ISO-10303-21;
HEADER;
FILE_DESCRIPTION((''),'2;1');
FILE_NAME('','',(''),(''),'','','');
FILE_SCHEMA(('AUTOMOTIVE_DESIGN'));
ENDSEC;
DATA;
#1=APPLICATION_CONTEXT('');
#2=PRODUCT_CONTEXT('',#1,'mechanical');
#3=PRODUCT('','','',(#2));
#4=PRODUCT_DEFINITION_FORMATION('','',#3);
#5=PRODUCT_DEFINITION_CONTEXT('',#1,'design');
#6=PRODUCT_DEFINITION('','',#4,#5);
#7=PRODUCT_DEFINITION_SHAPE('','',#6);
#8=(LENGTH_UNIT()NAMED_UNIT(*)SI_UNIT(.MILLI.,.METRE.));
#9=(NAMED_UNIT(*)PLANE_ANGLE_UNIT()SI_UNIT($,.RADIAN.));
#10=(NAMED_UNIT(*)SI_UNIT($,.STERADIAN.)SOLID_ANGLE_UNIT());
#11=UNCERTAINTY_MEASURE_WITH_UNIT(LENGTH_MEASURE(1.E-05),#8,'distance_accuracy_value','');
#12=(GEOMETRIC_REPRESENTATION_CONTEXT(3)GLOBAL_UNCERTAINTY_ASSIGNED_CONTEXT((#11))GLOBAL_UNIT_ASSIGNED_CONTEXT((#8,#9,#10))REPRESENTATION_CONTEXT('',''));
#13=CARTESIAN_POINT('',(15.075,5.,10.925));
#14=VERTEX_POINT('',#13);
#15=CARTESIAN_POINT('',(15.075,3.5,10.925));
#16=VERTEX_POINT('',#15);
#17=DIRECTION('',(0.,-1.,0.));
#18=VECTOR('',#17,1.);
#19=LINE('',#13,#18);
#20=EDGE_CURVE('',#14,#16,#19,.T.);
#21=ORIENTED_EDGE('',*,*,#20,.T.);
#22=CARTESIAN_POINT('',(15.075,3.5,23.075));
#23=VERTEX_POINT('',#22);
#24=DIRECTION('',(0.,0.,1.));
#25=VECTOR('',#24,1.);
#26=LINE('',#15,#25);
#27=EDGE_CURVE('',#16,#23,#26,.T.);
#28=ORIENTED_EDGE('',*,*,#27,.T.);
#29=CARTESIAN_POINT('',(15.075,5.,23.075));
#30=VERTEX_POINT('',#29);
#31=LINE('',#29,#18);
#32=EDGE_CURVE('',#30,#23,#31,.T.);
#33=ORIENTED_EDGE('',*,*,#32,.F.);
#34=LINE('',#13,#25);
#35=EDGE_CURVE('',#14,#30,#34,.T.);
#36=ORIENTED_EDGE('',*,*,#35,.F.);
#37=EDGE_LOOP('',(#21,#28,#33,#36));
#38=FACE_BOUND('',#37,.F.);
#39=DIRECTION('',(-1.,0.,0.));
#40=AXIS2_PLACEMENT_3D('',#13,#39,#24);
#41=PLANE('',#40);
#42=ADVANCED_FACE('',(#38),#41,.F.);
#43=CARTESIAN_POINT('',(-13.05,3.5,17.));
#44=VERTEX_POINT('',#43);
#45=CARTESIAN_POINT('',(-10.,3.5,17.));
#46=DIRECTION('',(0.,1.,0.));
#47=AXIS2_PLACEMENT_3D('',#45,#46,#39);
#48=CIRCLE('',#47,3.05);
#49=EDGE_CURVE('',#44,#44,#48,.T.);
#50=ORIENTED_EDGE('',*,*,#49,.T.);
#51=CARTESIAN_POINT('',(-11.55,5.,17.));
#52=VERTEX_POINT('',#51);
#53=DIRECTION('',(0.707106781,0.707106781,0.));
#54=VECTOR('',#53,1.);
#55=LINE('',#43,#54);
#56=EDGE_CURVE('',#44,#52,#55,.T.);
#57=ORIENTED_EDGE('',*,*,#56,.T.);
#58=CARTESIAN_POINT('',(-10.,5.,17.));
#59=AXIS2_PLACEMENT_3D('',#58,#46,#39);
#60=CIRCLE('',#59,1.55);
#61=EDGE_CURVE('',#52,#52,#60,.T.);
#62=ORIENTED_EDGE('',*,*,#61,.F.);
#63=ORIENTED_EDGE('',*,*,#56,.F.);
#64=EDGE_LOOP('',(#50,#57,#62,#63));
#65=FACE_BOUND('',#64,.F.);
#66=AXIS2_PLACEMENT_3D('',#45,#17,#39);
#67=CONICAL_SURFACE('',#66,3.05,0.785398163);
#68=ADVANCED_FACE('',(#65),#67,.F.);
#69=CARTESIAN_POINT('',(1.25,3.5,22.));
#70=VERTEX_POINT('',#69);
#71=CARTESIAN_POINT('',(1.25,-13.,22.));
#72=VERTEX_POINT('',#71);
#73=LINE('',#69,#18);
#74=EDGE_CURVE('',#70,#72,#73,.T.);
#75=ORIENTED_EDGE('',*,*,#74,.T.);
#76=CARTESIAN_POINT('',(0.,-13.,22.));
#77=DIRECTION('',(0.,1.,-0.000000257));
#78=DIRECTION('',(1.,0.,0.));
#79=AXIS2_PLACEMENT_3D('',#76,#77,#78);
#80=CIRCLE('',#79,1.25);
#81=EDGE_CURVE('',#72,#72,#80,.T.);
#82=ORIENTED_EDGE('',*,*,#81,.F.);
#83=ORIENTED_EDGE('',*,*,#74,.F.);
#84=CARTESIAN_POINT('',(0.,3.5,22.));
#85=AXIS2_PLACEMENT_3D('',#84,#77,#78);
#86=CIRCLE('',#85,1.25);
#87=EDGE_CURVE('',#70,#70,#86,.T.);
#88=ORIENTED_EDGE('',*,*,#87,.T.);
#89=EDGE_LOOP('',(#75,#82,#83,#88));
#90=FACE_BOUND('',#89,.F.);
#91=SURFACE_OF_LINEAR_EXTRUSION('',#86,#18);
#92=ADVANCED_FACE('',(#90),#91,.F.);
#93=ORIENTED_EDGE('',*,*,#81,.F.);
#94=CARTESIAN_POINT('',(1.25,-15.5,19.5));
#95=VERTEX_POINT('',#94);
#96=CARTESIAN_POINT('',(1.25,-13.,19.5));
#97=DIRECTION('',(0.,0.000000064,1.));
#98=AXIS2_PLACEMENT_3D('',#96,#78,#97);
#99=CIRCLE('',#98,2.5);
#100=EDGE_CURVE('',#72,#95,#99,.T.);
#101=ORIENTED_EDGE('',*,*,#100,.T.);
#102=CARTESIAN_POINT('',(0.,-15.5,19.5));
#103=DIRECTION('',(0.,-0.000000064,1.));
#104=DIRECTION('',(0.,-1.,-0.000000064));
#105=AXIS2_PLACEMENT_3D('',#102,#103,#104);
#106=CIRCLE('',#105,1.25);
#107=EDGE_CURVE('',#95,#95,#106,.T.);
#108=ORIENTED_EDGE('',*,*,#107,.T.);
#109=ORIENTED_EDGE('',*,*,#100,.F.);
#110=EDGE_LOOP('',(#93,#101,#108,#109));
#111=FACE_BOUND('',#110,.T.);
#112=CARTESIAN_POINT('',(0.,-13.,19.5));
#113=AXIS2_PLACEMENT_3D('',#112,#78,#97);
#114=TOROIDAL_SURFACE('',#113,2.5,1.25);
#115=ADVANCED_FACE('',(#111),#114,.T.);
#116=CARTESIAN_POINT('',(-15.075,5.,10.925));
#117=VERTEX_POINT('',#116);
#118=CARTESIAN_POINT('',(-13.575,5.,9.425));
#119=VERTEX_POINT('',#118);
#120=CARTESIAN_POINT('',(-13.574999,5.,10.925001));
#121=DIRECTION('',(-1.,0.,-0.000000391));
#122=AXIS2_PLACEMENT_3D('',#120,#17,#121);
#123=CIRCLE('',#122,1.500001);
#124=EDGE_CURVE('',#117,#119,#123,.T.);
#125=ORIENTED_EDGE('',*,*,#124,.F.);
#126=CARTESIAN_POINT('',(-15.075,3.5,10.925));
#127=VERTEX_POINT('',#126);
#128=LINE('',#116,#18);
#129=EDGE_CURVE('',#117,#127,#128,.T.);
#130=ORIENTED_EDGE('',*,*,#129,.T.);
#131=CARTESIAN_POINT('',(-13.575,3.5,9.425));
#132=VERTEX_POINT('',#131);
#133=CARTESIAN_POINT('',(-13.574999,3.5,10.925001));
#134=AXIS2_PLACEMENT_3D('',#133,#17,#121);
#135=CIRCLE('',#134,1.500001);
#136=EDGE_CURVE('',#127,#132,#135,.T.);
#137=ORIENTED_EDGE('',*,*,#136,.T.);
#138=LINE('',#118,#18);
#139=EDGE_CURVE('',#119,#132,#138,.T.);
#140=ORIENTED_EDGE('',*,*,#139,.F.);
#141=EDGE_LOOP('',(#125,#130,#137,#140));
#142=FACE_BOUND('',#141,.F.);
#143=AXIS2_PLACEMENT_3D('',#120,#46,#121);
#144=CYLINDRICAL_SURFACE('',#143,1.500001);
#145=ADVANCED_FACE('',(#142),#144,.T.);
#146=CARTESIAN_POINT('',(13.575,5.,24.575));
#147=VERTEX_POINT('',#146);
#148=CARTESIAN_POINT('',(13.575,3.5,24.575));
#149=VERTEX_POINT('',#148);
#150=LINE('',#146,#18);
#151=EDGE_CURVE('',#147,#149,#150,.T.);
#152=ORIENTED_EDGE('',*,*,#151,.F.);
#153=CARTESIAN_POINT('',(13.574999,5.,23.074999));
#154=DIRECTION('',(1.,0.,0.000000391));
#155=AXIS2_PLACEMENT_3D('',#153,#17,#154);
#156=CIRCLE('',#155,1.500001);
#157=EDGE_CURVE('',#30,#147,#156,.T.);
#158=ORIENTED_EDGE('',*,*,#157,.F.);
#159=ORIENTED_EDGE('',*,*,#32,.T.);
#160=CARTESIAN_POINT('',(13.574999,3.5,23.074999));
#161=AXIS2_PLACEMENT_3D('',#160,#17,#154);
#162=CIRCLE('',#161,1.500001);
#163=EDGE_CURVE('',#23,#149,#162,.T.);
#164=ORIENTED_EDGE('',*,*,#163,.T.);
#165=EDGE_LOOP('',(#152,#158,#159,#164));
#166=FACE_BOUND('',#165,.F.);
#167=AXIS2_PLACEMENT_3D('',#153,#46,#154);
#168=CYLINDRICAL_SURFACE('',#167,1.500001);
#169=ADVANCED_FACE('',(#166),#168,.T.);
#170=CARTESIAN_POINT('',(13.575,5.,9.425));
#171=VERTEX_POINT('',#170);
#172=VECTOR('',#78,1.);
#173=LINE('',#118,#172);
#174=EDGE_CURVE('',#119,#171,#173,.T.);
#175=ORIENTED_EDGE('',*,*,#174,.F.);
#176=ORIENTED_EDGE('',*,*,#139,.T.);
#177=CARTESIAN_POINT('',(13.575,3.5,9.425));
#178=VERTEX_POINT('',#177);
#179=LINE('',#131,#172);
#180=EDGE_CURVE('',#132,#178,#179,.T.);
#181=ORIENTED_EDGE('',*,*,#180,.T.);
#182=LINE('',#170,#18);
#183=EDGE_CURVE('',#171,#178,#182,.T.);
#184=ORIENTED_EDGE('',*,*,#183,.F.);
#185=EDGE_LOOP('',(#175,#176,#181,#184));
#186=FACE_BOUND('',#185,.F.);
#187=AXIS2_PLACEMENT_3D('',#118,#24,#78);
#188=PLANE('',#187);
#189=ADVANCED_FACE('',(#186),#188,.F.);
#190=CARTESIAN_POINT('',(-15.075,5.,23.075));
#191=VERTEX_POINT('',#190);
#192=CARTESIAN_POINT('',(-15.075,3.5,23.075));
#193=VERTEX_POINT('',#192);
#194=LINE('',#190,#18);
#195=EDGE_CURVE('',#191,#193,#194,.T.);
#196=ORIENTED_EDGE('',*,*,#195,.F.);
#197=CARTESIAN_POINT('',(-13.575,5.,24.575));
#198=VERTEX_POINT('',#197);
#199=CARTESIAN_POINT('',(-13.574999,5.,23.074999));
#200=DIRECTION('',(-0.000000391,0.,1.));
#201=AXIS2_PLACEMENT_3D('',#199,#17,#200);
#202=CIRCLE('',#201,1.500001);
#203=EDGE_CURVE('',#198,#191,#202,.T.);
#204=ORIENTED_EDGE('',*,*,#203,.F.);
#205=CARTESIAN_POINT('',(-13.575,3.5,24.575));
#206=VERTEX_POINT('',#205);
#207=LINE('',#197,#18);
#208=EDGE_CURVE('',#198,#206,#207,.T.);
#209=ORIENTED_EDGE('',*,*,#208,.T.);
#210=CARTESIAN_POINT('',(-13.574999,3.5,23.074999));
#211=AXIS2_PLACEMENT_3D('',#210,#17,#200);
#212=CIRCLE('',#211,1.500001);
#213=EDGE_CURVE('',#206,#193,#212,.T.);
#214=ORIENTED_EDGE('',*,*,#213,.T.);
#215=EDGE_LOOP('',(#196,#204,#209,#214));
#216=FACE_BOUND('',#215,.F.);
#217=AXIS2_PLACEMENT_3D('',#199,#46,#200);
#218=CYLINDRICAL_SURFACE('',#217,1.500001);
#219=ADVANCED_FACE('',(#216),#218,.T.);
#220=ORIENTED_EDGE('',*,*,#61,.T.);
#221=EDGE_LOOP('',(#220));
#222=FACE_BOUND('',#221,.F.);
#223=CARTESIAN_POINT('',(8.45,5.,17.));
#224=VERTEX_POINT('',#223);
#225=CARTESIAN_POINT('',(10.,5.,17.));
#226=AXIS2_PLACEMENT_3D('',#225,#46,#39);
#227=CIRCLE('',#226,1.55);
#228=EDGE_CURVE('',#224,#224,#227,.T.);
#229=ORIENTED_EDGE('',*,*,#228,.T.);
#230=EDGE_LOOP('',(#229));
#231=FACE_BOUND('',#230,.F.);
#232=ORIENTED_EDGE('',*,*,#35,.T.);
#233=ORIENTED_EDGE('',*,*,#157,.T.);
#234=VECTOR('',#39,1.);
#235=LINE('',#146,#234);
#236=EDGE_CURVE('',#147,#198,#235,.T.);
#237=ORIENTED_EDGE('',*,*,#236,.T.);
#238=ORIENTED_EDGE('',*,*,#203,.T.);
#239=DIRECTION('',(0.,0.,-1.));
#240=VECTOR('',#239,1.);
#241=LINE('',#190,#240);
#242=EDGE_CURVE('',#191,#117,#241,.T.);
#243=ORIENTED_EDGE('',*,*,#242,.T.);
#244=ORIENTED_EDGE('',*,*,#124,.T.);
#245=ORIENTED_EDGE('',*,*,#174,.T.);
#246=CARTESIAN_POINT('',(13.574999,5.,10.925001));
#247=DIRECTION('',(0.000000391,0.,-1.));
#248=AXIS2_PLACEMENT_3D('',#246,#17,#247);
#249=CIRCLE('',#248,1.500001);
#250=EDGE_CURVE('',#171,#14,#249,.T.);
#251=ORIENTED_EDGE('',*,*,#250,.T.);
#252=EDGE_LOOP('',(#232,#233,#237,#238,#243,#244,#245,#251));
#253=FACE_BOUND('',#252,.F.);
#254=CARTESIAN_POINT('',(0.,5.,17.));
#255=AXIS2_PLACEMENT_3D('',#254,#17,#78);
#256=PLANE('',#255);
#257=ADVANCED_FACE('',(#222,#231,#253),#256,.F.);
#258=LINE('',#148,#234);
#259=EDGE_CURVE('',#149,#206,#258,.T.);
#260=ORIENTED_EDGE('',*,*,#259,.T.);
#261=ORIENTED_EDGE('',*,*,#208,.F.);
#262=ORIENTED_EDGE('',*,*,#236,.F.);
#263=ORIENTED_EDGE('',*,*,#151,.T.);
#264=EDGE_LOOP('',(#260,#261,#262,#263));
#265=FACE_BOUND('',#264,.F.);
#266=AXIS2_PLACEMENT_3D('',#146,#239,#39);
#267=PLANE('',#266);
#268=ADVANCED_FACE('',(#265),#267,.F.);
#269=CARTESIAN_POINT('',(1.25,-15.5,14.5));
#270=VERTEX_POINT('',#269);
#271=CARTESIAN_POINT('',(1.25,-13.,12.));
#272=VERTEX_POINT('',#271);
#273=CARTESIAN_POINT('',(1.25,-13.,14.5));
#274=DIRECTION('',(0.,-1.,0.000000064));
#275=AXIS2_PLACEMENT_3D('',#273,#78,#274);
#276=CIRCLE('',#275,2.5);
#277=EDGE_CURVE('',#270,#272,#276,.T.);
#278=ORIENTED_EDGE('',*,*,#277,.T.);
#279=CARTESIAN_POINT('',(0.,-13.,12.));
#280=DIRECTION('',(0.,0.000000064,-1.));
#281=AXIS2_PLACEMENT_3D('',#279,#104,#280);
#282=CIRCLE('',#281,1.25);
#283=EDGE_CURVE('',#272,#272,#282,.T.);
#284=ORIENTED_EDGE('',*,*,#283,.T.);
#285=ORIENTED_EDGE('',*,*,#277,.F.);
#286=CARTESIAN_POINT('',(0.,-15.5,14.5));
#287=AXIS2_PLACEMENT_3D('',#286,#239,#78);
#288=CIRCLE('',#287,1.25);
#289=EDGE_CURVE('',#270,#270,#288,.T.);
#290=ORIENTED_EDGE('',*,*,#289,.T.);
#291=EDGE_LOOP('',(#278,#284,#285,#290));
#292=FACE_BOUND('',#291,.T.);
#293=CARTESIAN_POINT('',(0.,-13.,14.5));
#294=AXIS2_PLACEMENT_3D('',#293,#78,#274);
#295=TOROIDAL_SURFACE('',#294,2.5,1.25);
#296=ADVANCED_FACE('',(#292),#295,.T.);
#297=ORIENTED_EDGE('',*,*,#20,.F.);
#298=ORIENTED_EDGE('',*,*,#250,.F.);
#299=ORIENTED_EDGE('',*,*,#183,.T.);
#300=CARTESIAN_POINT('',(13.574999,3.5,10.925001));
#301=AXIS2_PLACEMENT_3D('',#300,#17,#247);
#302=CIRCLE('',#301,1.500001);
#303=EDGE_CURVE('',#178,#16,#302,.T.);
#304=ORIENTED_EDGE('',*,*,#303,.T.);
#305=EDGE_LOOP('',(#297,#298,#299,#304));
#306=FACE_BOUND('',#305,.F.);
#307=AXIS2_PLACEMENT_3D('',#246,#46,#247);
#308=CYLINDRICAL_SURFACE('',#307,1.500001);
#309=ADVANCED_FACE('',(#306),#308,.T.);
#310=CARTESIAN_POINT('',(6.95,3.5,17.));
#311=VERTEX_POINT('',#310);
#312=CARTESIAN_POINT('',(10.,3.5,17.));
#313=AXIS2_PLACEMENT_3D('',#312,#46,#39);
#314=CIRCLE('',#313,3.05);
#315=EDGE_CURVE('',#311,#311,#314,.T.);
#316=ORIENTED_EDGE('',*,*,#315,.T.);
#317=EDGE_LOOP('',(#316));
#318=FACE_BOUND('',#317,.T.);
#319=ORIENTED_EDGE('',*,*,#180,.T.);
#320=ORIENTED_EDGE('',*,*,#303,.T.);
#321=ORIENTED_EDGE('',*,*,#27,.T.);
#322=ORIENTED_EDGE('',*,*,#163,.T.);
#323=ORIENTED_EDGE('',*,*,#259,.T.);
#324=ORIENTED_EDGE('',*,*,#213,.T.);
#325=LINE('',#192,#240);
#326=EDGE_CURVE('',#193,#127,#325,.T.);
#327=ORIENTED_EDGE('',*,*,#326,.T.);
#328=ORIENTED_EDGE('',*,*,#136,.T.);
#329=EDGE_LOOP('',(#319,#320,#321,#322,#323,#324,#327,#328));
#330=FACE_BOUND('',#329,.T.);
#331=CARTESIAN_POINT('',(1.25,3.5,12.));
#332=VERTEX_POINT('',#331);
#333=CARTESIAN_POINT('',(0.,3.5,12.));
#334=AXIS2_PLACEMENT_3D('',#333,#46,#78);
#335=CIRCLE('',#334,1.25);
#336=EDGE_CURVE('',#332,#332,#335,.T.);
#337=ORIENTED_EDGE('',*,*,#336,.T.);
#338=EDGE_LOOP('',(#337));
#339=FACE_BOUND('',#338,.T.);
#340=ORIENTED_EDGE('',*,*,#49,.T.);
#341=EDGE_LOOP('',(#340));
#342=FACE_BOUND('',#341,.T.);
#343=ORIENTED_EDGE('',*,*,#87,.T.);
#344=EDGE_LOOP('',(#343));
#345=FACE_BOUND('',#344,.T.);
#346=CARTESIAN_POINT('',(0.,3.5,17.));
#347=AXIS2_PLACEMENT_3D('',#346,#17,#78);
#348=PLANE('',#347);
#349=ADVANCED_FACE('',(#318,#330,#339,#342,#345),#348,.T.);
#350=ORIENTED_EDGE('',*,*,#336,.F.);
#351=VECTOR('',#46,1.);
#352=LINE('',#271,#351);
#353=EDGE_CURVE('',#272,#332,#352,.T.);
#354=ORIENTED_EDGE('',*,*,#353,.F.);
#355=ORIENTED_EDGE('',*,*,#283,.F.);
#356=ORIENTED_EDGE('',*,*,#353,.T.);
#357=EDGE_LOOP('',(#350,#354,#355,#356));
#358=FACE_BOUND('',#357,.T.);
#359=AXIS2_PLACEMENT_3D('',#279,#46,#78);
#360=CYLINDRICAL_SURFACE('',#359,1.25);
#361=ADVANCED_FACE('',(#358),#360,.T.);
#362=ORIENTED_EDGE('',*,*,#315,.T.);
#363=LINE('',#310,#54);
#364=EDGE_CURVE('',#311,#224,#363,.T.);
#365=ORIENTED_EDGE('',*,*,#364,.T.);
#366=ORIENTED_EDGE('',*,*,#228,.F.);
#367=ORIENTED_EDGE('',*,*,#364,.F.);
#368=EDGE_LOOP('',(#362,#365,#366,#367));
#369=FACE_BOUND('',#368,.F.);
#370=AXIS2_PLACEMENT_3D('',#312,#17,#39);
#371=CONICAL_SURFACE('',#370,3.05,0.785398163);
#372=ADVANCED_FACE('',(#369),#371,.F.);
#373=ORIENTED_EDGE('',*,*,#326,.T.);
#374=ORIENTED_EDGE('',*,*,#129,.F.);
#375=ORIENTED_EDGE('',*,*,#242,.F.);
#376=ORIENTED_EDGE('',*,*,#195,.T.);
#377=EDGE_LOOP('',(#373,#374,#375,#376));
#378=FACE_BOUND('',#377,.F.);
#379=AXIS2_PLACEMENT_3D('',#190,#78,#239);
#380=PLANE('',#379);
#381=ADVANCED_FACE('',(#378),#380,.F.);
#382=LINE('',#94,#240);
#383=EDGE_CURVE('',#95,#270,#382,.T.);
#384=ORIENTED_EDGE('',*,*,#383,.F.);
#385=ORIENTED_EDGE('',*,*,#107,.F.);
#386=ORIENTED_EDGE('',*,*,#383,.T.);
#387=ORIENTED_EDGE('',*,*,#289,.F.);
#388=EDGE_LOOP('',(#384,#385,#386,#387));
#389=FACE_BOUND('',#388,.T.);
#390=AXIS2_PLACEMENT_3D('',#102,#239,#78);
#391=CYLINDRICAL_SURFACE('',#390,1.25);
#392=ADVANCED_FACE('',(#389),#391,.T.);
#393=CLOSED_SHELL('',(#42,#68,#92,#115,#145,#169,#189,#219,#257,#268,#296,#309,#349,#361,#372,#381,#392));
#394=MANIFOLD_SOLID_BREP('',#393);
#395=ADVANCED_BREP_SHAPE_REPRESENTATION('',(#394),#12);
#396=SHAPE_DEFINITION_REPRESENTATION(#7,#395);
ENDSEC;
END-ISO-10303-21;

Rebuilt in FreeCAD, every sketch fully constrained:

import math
import FreeCAD as App
import Part
import Sketcher

V = App.Vector
Q = App.Units.Quantity

doc = App.newDocument("Part")
params = doc.addObject("Spreadsheet::Sheet", "Params")
for row, (alias, value) in enumerate([
    ("sketch1_radius", "1.500001 mm"),
    ("sketch1_width", "27.15 mm"),
    ("sketch1_height", "12.15 mm"),
    ("pad1_length", "1.5 mm"),
    ("sketch2_diameter", "3 mm"),
    ("hole_diameter", "3 mm"),
    ("hole_depth", "25 mm"),
    ("hole_csink_diameter", "6.1 mm"),
    ("sketch3_diameter", "2.5 mm"),
    ("sketch4_radius", "2.5 mm"),
    ("sketch4_height", "5 mm"),
    ("sketch4_width", "16.5 mm"),
], start=1):
    params.set(f"A{row}", alias)
    params.set(f"B{row}", "=" + value)
    params.setAlias(f"B{row}", alias)

body = doc.addObject("PartDesign::Body", "Body")

# Sketch on XZ plane
sketch1 = doc.addObject("Sketcher::SketchObject", "Sketch")
body.addObject(sketch1)
sketch1.AttachmentSupport = (doc.XZ_Plane, [""])
sketch1.MapMode = "FlatFace"
sketch1.addGeometry([
    Part.LineSegment(V(-15.1, 6.1, 0), V(-15.1, -6.1, 0)),  # 0
    Part.ArcOfCircle(Part.Circle(V(-13.6, -6.1, 0), V(0, 0, 1), 1.5), math.radians(-180), math.radians(-90)),  # 1
    Part.LineSegment(V(-13.6, -7.6, 0), V(13.6, -7.6, 0)),  # 2
    Part.ArcOfCircle(Part.Circle(V(13.6, -6.1, 0), V(0, 0, 1), 1.5), math.radians(-90), math.radians(0)),  # 3
    Part.LineSegment(V(15.1, -6.1, 0), V(15.1, 6.1, 0)),  # 4
    Part.ArcOfCircle(Part.Circle(V(13.6, 6.1, 0), V(0, 0, 1), 1.5), math.radians(0), math.radians(90)),  # 5
    Part.LineSegment(V(13.6, 7.6, 0), V(-13.6, 7.6, 0)),  # 6
    Part.ArcOfCircle(Part.Circle(V(-13.6, 6.1, 0), V(0, 0, 1), 1.5), math.radians(90), math.radians(180)),  # 7
], False)
sketch1.addConstraint([
    Sketcher.Constraint("Tangent", 0, 2, 1, 1),
    Sketcher.Constraint("Tangent", 1, 2, 2, 1),
    Sketcher.Constraint("Tangent", 2, 2, 3, 1),
    Sketcher.Constraint("Tangent", 3, 2, 4, 1),
    Sketcher.Constraint("Tangent", 4, 2, 5, 1),
    Sketcher.Constraint("Tangent", 5, 2, 6, 1),
    Sketcher.Constraint("Tangent", 6, 2, 7, 1),
    Sketcher.Constraint("Tangent", 7, 2, 0, 1),
    Sketcher.Constraint("Vertical", 0),
    Sketcher.Constraint("Horizontal", 2),
    Sketcher.Constraint("Vertical", 4),
    Sketcher.Constraint("Horizontal", 6),
    Sketcher.Constraint("Equal", 1, 3),
    Sketcher.Constraint("Equal", 3, 5),
    Sketcher.Constraint("Equal", 5, 7),
    Sketcher.Constraint("Symmetric", 1, 3, 5, 3, -1, 1),
    Sketcher.Constraint("Radius", 1, Q("1.500001 mm")),
    Sketcher.Constraint("DistanceX", 2, 1, 2, 2, Q("27.15 mm")),
    Sketcher.Constraint("DistanceY", 0, 2, 0, 1, Q("12.15 mm")),
])
sketch1.setExpression("Constraints[16]", "Params.sketch1_radius")
sketch1.setExpression("Constraints[17]", "Params.sketch1_width")
sketch1.setExpression("Constraints[18]", "Params.sketch1_height")
pad1 = doc.addObject("PartDesign::Pad", "Pad")
body.addObject(pad1)
pad1.Profile = sketch1
pad1.setExpression("Length", "Params.pad1_length")

# Sketch on XZ plane
sketch2 = doc.addObject("Sketcher::SketchObject", "Sketch001")
body.addObject(sketch2)
sketch2.AttachmentSupport = (doc.XZ_Plane, [""])
sketch2.MapMode = "FlatFace"
sketch2.AttachmentOffset = App.Placement(V(0, 0, 1.5), App.Rotation())
sketch2.addGeometry([
    Part.Circle(V(-10, 0, 0), V(0, 0, 1), 1.5),
    Part.Circle(V(10, 0, 0), V(0, 0, 1), 1.5),
], False)
sketch2.addConstraint([
    Sketcher.Constraint("Equal", 0, 1),
    Sketcher.Constraint("Symmetric", 0, 3, 1, 3, -1, 1),
    Sketcher.Constraint("PointOnObject", 0, 3, -1),
    Sketcher.Constraint("Diameter", 0, Q("3 mm")),
    Sketcher.Constraint("DistanceX", 0, 3, -1, 1, Q("10 mm")),
])
sketch2.setExpression("Constraints[3]", "Params.sketch2_diameter")
doc.recompute()
hole = doc.addObject("PartDesign::Hole", "Hole")
body.addObject(hole)
hole.Profile = sketch2
hole.ThreadType = "None"
hole.setExpression("Diameter", "Params.hole_diameter")
hole.DepthType = "Dimension"
hole.setExpression("Depth", "Params.hole_depth")
hole.DrillPoint = "Flat"
hole.HoleCutType = "Countersink"
hole.setExpression("HoleCutDiameter", "Params.hole_csink_diameter")
hole.HoleCutCountersinkAngle = 90

# Sketch on XZ plane
sketch3 = doc.addObject("Sketcher::SketchObject", "Sketch002")
body.addObject(sketch3)
sketch3.AttachmentSupport = (doc.XZ_Plane, [""])
sketch3.MapMode = "FlatFace"
sketch3.AttachmentOffset = App.Placement(V(0, 0, 1.5), App.Rotation())
sketch3.addGeometry(Part.Circle(V(0, -5, 0), V(0, 0, 1), 1.2), False)
sketch3.addConstraint([
    Sketcher.Constraint("PointOnObject", 0, 3, -2),
    Sketcher.Constraint("Diameter", 0, Q("2.5 mm")),
    Sketcher.Constraint("DistanceY", 0, 3, -1, 1, Q("5 mm")),
])
sketch3.setExpression("Constraints[1]", "Params.sketch3_diameter")

# Sketch on YZ plane
sketch4 = doc.addObject("Sketcher::SketchObject", "Sketch003")
body.addObject(sketch4)
sketch4.AttachmentSupport = (doc.YZ_Plane, [""])
sketch4.MapMode = "FlatFace"
sketch4.addGeometry([
    Part.LineSegment(V(-1.5, 5, 0), V(-18, 5, 0)),  # 0
    Part.ArcOfCircle(Part.Circle(V(-18, 2.5, 0), V(0, 0, 1), 2.5), math.radians(90), math.radians(180)),  # 1
    Part.LineSegment(V(-20.5, 2.5, 0), V(-20.5, -2.5, 0)),  # 2
    Part.ArcOfCircle(Part.Circle(V(-18, -2.5, 0), V(0, 0, 1), 2.5), math.radians(180), math.radians(270)),  # 3
    Part.LineSegment(V(-18, -5, 0), V(-1.5, -5, 0)),  # 4
], False)
sketch4.addConstraint([
    Sketcher.Constraint("Tangent", 0, 2, 1, 1),
    Sketcher.Constraint("Tangent", 1, 2, 2, 1),
    Sketcher.Constraint("Tangent", 2, 2, 3, 1),
    Sketcher.Constraint("Tangent", 3, 2, 4, 1),
    Sketcher.Constraint("Horizontal", 0),
    Sketcher.Constraint("Vertical", 2),
    Sketcher.Constraint("Horizontal", 4),
    Sketcher.Constraint("Equal", 1, 3),
    Sketcher.Constraint("Symmetric", 0, 1, 4, 2, -1),
    Sketcher.Constraint("Radius", 1, Q("2.5 mm")),
    Sketcher.Constraint("DistanceY", 2, 2, 2, 1, Q("5 mm")),
    Sketcher.Constraint("DistanceX", 0, 2, 0, 1, Q("16.5 mm")),
    Sketcher.Constraint("DistanceX", 1, 3, -1, 1, Q("18 mm")),
])
sketch4.setExpression("Constraints[9]", "Params.sketch4_radius")
sketch4.setExpression("Constraints[10]", "Params.sketch4_height")
sketch4.setExpression("Constraints[11]", "Params.sketch4_width")
doc.recompute()

additivepipe = doc.addObject("PartDesign::AdditivePipe", "AdditivePipe")
body.addObject(additivepipe)
additivepipe.Profile = sketch3
additivepipe.Spine = (sketch4, ["Edge1", "Edge2", "Edge3", "Edge4", "Edge5"])
body2 = doc.addObject("PartDesign::Body", "Body001")
doc.recompute()

body.Placement = App.Placement(V(0, 5, 17), App.Rotation(V(0, 0, 1), 0))
boolean = doc.addObject("PartDesign::Boolean", "Boolean")
body2.addObject(boolean)
boolean.Type = "Fuse"
boolean.addObjects([body])

doc.recompute()
